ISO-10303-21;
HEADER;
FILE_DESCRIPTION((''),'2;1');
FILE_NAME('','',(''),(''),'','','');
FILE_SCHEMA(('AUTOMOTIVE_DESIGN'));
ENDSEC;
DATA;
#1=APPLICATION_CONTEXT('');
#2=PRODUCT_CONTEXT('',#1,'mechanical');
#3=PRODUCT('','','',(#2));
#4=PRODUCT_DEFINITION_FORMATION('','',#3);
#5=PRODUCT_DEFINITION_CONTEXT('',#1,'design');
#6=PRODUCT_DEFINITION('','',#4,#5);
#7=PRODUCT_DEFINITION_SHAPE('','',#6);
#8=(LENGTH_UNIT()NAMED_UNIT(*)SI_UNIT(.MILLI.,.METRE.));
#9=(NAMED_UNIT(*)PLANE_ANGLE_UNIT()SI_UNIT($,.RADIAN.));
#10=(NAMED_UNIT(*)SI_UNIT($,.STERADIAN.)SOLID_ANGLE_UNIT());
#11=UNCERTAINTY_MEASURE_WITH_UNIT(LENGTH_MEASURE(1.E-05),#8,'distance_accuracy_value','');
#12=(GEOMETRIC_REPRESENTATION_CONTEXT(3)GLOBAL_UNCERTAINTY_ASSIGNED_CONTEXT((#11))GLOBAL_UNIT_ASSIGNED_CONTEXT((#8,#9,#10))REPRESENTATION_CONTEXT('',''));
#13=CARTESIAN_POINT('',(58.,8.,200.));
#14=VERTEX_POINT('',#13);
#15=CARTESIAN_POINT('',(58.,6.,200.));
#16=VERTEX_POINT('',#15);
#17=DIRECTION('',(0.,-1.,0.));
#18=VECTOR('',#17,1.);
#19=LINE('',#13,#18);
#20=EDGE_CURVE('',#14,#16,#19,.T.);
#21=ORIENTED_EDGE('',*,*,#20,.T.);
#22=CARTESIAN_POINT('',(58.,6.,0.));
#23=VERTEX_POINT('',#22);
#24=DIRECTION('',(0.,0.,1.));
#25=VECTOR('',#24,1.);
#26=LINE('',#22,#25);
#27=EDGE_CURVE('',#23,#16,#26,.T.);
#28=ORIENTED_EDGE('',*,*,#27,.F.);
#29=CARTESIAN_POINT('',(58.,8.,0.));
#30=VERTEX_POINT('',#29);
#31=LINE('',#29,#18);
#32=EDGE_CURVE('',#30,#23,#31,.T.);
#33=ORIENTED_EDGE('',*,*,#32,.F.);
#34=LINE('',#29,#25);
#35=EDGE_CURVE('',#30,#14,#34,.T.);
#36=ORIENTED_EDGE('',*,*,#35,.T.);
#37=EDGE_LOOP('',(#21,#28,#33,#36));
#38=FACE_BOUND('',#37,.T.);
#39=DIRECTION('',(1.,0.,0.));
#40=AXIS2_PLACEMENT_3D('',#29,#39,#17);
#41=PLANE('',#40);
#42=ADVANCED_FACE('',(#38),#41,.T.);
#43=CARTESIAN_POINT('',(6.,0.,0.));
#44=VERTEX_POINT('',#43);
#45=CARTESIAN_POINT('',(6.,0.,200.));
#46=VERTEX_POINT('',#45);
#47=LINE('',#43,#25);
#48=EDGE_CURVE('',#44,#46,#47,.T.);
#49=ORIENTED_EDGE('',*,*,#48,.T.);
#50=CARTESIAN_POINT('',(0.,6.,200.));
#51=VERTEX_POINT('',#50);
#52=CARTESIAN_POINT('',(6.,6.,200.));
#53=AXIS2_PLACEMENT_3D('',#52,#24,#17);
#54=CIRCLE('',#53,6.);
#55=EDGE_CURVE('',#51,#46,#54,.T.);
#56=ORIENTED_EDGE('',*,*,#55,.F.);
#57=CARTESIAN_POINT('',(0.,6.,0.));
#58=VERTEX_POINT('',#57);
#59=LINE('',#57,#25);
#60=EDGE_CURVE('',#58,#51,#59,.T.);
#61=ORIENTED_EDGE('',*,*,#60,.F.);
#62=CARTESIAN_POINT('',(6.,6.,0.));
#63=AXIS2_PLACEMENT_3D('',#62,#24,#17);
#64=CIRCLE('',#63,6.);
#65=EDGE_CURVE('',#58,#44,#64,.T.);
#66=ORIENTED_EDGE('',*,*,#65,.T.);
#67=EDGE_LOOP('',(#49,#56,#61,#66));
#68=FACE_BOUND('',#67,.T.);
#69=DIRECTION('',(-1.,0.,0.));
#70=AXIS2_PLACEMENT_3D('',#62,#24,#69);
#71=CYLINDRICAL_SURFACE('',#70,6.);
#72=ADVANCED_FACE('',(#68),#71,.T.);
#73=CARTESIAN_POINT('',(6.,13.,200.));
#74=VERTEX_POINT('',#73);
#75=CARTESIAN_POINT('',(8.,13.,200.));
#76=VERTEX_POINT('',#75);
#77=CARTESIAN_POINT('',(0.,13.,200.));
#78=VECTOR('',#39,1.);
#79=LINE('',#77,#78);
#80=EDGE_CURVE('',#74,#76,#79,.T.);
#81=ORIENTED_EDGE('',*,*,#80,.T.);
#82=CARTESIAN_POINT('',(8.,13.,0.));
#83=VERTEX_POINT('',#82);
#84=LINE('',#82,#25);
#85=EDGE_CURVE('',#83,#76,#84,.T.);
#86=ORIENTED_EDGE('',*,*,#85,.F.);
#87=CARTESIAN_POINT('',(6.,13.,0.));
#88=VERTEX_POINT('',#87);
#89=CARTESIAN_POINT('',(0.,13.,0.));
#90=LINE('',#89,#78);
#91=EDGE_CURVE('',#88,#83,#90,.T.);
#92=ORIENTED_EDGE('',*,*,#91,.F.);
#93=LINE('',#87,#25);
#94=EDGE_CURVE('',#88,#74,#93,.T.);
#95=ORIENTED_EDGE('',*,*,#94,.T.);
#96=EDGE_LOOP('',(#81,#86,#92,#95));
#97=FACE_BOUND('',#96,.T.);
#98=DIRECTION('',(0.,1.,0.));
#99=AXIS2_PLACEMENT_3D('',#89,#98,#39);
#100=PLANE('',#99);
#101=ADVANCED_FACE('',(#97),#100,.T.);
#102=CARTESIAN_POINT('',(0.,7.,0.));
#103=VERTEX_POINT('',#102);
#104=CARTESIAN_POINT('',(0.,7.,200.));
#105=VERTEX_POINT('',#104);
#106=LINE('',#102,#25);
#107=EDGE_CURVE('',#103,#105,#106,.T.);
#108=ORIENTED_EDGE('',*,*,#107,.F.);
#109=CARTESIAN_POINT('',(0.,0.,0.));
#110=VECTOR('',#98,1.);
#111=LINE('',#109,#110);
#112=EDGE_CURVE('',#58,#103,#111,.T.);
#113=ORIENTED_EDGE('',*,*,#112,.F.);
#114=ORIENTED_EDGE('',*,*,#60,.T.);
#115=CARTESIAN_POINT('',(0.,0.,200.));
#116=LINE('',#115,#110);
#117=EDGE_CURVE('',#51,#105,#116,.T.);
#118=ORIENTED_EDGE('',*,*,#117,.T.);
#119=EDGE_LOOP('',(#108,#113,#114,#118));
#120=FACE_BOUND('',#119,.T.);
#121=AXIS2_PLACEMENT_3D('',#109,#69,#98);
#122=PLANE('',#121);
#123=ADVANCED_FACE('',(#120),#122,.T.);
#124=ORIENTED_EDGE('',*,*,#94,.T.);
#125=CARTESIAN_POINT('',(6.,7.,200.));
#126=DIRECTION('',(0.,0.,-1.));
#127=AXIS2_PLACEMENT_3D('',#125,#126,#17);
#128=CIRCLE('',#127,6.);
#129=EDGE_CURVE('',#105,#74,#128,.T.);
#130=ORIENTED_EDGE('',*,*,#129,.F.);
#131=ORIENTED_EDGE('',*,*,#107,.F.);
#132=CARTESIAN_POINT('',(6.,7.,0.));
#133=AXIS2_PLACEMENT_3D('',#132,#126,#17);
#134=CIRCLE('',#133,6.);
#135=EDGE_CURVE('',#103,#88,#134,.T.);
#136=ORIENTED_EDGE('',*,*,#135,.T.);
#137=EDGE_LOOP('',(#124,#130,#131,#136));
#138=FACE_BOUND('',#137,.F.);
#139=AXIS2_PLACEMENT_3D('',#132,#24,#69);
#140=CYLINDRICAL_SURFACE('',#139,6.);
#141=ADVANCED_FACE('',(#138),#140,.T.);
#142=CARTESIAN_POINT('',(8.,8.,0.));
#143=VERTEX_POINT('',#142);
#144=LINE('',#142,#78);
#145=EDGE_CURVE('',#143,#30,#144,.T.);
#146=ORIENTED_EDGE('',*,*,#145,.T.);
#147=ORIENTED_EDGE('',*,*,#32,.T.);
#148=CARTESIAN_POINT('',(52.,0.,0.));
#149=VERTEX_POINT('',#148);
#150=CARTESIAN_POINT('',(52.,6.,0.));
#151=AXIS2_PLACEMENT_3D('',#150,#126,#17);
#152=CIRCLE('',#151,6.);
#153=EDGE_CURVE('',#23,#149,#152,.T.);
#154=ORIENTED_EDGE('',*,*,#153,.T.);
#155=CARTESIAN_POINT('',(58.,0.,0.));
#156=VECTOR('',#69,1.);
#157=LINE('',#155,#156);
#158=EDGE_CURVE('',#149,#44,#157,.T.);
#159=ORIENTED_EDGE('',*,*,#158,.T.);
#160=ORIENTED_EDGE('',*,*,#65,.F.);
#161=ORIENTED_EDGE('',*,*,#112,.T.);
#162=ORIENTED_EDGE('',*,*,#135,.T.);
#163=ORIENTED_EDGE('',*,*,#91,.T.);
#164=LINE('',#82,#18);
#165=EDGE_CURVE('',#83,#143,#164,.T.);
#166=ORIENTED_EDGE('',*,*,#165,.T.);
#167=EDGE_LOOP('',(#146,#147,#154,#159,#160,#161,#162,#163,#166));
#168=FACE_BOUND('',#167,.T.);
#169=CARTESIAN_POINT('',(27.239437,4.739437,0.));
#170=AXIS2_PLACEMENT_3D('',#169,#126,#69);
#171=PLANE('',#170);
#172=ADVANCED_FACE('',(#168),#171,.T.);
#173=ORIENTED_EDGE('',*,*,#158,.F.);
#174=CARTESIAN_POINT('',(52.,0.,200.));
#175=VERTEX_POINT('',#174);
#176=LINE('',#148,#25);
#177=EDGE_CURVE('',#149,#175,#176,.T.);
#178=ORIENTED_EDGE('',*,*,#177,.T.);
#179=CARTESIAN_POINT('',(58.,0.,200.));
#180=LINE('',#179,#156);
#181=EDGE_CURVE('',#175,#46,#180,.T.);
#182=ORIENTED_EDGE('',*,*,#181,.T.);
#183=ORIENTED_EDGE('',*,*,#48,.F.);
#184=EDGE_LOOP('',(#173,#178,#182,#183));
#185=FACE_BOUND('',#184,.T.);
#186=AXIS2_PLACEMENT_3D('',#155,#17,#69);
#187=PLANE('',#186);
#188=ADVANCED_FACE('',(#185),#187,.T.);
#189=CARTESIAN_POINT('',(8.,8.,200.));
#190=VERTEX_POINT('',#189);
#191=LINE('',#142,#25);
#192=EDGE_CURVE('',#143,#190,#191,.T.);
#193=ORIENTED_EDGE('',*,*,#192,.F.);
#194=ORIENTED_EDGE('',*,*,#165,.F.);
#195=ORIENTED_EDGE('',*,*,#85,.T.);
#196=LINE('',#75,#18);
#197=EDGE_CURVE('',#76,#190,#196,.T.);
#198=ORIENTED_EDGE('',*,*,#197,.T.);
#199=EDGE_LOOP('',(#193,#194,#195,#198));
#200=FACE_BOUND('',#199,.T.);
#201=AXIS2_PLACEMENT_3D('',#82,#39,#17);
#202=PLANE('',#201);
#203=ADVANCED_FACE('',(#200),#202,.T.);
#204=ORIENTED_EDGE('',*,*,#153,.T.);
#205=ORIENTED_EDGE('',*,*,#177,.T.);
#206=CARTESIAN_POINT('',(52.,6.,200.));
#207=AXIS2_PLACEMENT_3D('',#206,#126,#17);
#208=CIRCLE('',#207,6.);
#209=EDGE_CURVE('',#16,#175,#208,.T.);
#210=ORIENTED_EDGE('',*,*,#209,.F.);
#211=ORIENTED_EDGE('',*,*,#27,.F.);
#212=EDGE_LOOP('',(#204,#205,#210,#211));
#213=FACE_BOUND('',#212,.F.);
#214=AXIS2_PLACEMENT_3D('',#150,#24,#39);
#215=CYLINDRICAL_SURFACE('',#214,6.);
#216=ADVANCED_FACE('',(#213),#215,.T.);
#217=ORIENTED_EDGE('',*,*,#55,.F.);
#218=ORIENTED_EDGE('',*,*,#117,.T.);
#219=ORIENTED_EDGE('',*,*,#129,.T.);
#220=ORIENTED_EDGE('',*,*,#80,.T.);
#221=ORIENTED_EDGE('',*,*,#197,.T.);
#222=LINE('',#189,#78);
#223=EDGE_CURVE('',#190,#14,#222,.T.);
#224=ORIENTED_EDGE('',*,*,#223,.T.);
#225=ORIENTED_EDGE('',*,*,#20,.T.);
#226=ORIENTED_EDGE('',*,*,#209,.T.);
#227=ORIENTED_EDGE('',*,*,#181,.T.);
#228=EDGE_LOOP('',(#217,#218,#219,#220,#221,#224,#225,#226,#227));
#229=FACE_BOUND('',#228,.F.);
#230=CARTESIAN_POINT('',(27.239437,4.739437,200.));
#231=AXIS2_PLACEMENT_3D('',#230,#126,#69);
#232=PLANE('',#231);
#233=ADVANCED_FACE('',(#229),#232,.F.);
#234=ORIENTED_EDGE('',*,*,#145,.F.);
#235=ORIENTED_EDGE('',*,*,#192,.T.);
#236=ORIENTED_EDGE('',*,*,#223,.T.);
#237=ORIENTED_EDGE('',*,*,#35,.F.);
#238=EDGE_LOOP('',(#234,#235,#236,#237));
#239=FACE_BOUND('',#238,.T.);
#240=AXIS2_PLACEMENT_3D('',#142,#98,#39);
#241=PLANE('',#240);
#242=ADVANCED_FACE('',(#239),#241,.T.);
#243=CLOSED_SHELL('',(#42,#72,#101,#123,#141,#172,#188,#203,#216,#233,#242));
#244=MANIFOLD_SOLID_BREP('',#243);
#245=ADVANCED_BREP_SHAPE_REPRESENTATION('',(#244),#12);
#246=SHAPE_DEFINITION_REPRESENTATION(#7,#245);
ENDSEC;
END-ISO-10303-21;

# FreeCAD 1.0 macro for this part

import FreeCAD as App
import Part
import Sketcher
from FreeCAD import Vector


def edges_at(feature, points):
    """Names of the edges that pass closest to the given points."""
    edges = feature.Shape.Edges
    near = lambda p: min(range(len(edges)), key=lambda i: edges[i].distToShape(Part.Vertex(*p))[0])
    return sorted({f"Edge{near(p) + 1}" for p in points})


def add_polygon(sketch, points):
    """Adds a closed chain of lines whose ends are joined by coincident constraints."""
    first, n = sketch.GeometryCount, len(points)
    for a, b in zip(points, points[1:] + points[:1]):
        sketch.addGeometry(Part.LineSegment(App.Vector(*a, 0), App.Vector(*b, 0)), False)
    for i in range(n):
        sketch.addConstraint(Sketcher.Constraint("Coincident", first + i, 2, first + (i + 1) % n, 1))

doc = App.newDocument("Part")
body = doc.addObject("PartDesign::Body", "Body")

# Sketch on XY plane
sketch1 = body.newObject("Sketcher::SketchObject", "Sketch")
sketch1.AttachmentSupport = (doc.getObject("XY_Plane"), [""])
sketch1.MapMode = "FlatFace"
add_polygon(sketch1, [(0, 13), (0, 0), (58, 0), (58, 8), (8, 8), (8, 13)])  # lines 0-5
sketch1.addConstraint([
    Sketcher.Constraint("Vertical", 0),
    Sketcher.Constraint("Horizontal", 1),
    Sketcher.Constraint("Vertical", 2),
    Sketcher.Constraint("Horizontal", 3),
    Sketcher.Constraint("Vertical", 4),
    Sketcher.Constraint("Horizontal", 5),
    Sketcher.Constraint("Coincident", 0, 2, -1, 1),
    Sketcher.Constraint("Equal", 5, 2),
    Sketcher.Constraint("DistanceX", 1, 1, 1, 2, 58.0),
    Sketcher.Constraint("DistanceX", 3, 2, 3, 1, 50.0),
    Sketcher.Constraint("DistanceY", 0, 2, 0, 1, 13.0),
])
pad1 = body.newObject("PartDesign::Pad", "Pad")
pad1.Profile = sketch1
pad1.Length = 200
doc.recompute()

fillet = body.newObject("PartDesign::Fillet", "Fillet")
fillet.Base = (pad1, edges_at(pad1, [(58, 0, 100), (0, 0, 100), (0, 13, 100)]))
fillet.Radius = 6

doc.recompute()
